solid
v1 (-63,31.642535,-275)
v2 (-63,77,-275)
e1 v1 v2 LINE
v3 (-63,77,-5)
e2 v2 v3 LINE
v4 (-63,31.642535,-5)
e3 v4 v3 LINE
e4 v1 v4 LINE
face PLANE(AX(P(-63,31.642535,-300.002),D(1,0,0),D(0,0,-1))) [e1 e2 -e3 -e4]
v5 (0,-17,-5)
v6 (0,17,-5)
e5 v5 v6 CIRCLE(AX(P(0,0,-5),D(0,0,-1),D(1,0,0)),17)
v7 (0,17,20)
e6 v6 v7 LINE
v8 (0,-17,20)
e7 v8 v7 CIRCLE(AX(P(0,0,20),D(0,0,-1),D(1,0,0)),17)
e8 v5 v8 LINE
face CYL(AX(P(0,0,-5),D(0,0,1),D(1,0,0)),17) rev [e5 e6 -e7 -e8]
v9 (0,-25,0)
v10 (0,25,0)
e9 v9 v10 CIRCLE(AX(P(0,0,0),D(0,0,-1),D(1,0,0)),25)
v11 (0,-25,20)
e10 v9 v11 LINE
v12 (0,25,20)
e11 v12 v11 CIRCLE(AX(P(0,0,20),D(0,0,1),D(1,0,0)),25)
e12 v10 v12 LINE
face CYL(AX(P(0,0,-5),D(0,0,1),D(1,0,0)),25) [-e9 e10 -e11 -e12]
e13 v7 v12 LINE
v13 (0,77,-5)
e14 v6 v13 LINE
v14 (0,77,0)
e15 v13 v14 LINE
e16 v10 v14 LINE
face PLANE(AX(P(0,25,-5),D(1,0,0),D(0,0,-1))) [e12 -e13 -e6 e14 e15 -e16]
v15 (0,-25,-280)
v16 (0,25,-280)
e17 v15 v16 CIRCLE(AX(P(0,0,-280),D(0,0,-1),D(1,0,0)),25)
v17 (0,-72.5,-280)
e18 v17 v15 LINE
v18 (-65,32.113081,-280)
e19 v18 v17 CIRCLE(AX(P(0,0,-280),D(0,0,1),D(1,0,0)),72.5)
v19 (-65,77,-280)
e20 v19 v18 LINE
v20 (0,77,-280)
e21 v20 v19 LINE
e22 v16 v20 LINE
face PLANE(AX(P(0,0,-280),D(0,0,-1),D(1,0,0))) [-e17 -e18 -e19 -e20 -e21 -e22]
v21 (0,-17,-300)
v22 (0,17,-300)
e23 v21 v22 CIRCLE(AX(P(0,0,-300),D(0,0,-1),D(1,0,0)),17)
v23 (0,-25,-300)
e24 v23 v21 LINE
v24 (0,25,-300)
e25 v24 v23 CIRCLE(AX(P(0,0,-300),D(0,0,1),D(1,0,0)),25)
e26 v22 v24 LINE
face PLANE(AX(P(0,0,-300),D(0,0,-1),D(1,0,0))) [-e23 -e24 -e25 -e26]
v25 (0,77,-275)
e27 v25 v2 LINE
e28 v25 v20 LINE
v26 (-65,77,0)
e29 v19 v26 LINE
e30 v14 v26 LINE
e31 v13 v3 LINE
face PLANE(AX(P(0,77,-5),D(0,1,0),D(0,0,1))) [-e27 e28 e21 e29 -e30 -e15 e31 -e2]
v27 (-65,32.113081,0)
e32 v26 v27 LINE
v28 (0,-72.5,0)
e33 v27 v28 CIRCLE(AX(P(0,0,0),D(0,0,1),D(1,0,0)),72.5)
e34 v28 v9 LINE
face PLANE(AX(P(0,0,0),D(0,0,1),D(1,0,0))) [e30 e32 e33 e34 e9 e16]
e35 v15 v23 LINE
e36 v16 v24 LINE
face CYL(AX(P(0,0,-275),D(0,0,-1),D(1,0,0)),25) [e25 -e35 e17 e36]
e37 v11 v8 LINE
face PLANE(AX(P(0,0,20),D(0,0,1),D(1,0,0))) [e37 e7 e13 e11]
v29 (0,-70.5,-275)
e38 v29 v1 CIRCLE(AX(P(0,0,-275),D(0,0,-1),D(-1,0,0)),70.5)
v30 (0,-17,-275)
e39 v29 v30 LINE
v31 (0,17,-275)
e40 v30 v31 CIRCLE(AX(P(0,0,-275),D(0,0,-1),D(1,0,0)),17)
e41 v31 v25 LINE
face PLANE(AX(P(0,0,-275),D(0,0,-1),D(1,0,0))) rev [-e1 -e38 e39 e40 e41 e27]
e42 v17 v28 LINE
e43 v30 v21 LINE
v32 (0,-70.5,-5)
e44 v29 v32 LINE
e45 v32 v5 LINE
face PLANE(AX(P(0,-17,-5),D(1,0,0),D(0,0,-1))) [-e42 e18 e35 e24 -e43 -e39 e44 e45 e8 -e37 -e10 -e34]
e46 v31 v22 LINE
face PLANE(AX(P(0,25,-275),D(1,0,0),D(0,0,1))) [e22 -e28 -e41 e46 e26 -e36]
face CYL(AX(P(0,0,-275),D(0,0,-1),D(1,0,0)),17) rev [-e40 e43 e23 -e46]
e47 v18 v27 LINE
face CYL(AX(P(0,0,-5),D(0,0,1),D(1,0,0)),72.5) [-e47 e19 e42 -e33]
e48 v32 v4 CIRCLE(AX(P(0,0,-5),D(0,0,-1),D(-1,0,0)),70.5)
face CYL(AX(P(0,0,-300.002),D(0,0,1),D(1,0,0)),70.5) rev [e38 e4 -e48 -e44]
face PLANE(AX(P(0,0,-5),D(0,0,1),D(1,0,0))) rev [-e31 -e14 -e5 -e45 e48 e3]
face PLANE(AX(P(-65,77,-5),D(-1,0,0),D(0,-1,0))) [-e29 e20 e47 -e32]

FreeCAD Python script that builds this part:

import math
import FreeCAD as App
import Part
import Sketcher

V = App.Vector

doc = App.newDocument("Part")
body = doc.addObject("PartDesign::Body", "Body")

# Sketch on XY plane
sketch1 = doc.addObject("Sketcher::SketchObject", "Sketch")
body.addObject(sketch1)
sketch1.AttachmentSupport = (doc.XY_Plane, [""])
sketch1.MapMode = "FlatFace"
sketch1.addGeometry(Part.LineSegment(V(0, 17, 0), V(0, 25, 0)), False)
sketch1.addGeometry(Part.ArcOfCircle(Part.Circle(V(0, 0, 0), V(0, 0, 1), 25), math.radians(90), math.radians(270)), False)
sketch1.addGeometry(Part.LineSegment(V(0, -25, 0), V(0, -17, 0)), False)
sketch1.addGeometry(Part.ArcOfCircle(Part.Circle(V(0, 0, 0), V(0, 0, 1), 17), math.radians(90), math.radians(270)), False)
sketch1.addConstraint(Sketcher.Constraint("Coincident", 0, 2, 1, 1))
sketch1.addConstraint(Sketcher.Constraint("Coincident", 1, 2, 2, 1))
sketch1.addConstraint(Sketcher.Constraint("Coincident", 2, 2, 3, 2))
sketch1.addConstraint(Sketcher.Constraint("Coincident", 3, 1, 0, 1))
sketch1.addConstraint(Sketcher.Constraint("Vertical", 0))
sketch1.addConstraint(Sketcher.Constraint("Vertical", 2))
sketch1.addConstraint(Sketcher.Constraint("Coincident", 1, 3, -1, 1))
sketch1.addConstraint(Sketcher.Constraint("Coincident", 3, 3, -1, 1))
sketch1.addConstraint(Sketcher.Constraint("PointOnObject", 0, 2, -2))
sketch1.addConstraint(Sketcher.Constraint("PointOnObject", 1, 2, -2))
sketch1.addConstraint(Sketcher.Constraint("Radius", 1, 25.0))
sketch1.addConstraint(Sketcher.Constraint("Radius", 3, 17.0))
pad1 = doc.addObject("PartDesign::Pad", "Pad")
body.addObject(pad1)
pad1.Profile = sketch1
pad1.Type = "TwoLengths"
pad1.Length = 20
pad1.Length2 = 5

# Sketch on XY plane
sketch2 = doc.addObject("Sketcher::SketchObject", "Sketch001")
body.addObject(sketch2)
sketch2.AttachmentSupport = (doc.XY_Plane, [""])
sketch2.MapMode = "FlatFace"
sketch2.AttachmentOffset = App.Placement(V(0, 0, -5), App.Rotation())
sketch2.addGeometry(Part.LineSegment(V(0, 25, 0), V(0, 77, 0)), False)
sketch2.addGeometry(Part.LineSegment(V(0, 77, 0), V(-65, 77, 0)), False)
sketch2.addGeometry(Part.LineSegment(V(-65, 77, 0), V(-65, 32, 0)), False)
sketch2.addGeometry(Part.ArcOfCircle(Part.Circle(V(0, 0, 0), V(0, 0, 1), 72), math.radians(154), math.radians(270)), False)
sketch2.addGeometry(Part.LineSegment(V(0, -72, 0), V(0, -25, 0)), False)
sketch2.addGeometry(Part.ArcOfCircle(Part.Circle(V(0, 0, 0), V(0, 0, 1), 25), math.radians(90), math.radians(270)), False)
sketch2.addConstraint(Sketcher.Constraint("Coincident", 0, 2, 1, 1))
sketch2.addConstraint(Sketcher.Constraint("Coincident", 1, 2, 2, 1))
sketch2.addConstraint(Sketcher.Constraint("Coincident", 2, 2, 3, 1))
sketch2.addConstraint(Sketcher.Constraint("Coincident", 3, 2, 4, 1))
sketch2.addConstraint(Sketcher.Constraint("Coincident", 4, 2, 5, 2))
sketch2.addConstraint(Sketcher.Constraint("Coincident", 5, 1, 0, 1))
sketch2.addConstraint(Sketcher.Constraint("Vertical", 0))
sketch2.addConstraint(Sketcher.Constraint("Horizontal", 1))
sketch2.addConstraint(Sketcher.Constraint("Vertical", 2))
sketch2.addConstraint(Sketcher.Constraint("Vertical", 4))
sketch2.addConstraint(Sketcher.Constraint("Coincident", 3, 3, -1, 1))
sketch2.addConstraint(Sketcher.Constraint("Coincident", 5, 3, -1, 1))
sketch2.addConstraint(Sketcher.Constraint("PointOnObject", 0, 2, -2))
sketch2.addConstraint(Sketcher.Constraint("PointOnObject", 3, 2, -2))
sketch2.addConstraint(Sketcher.Constraint("Radius", 5, 25.0))
sketch2.addConstraint(Sketcher.Constraint("Radius", 3, 72.5))
sketch2.addConstraint(Sketcher.Constraint("DistanceX", 1, 2, 1, 1, 65.0))
sketch2.addConstraint(Sketcher.Constraint("DistanceY", 0, 1, 0, 2, 52.0))
pad2 = doc.addObject("PartDesign::Pad", "Pad001")
body.addObject(pad2)
pad2.Profile = sketch2
pad2.Length = 5
body2 = doc.addObject("PartDesign::Body", "Body001")
body2.AllowCompound = True
doc.recompute()

mirroring = doc.addObject("Part::Mirroring", "Mirroring")
mirroring.Source = body
mirroring.Base = V(0, 0, -140)
mirroring.Normal = V(0, 0, 1)
body2.BaseFeature = mirroring
doc.recompute()

boolean = doc.addObject("PartDesign::Boolean", "Boolean")
body2.addObject(boolean)
boolean.Type = "Fuse"
boolean.addObjects([body])

# Sketch on XY plane
sketch3 = doc.addObject("Sketcher::SketchObject", "Sketch002")
body2.addObject(sketch3)
sketch3.AttachmentSupport = (doc.getObject("XY_Plane001"), [""])
sketch3.MapMode = "FlatFace"
sketch3.AttachmentOffset = App.Placement(V(0, 0, -5), App.Rotation())
sketch3.addGeometry(Part.LineSegment(V(-63, 77, 0), V(-63, 31.6, 0)), False)
sketch3.addGeometry(Part.ArcOfCircle(Part.Circle(V(0, 0, 0), V(0, 0, 1), 70.5), math.radians(153), math.radians(270)), False)
sketch3.addGeometry(Part.LineSegment(V(0, -70.5, 0), V(0, -72.5, 0)), False)
sketch3.addGeometry(Part.ArcOfCircle(Part.Circle(V(0, 0, 0), V(0, 0, 1), 72.5), math.radians(154), math.radians(270)), False)
sketch3.addGeometry(Part.LineSegment(V(-65, 32.1, 0), V(-65, 77, 0)), False)
sketch3.addGeometry(Part.LineSegment(V(-65, 77, 0), V(-63, 77, 0)), False)
sketch3.addConstraint(Sketcher.Constraint("Coincident", 0, 2, 1, 1))
sketch3.addConstraint(Sketcher.Constraint("Coincident", 1, 2, 2, 1))
sketch3.addConstraint(Sketcher.Constraint("Coincident", 2, 2, 3, 2))
sketch3.addConstraint(Sketcher.Constraint("Coincident", 3, 1, 4, 1))
sketch3.addConstraint(Sketcher.Constraint("Coincident", 4, 2, 5, 1))
sketch3.addConstraint(Sketcher.Constraint("Coincident", 5, 2, 0, 1))
sketch3.addConstraint(Sketcher.Constraint("Vertical", 0))
sketch3.addConstraint(Sketcher.Constraint("Vertical", 2))
sketch3.addConstraint(Sketcher.Constraint("Vertical", 4))
sketch3.addConstraint(Sketcher.Constraint("Horizontal", 5))
sketch3.addConstraint(Sketcher.Constraint("Coincident", 1, 3, -1, 1))
sketch3.addConstraint(Sketcher.Constraint("Coincident", 3, 3, -1, 1))
sketch3.addConstraint(Sketcher.Constraint("PointOnObject", 1, 2, -2))
sketch3.addConstraint(Sketcher.Constraint("Equal", 5, 2))
sketch3.addConstraint(Sketcher.Constraint("Radius", 1, 70.5))
sketch3.addConstraint(Sketcher.Constraint("Radius", 3, 72.5))
sketch3.addConstraint(Sketcher.Constraint("DistanceX", 0, 2, -1, 1, 63.0))
sketch3.addConstraint(Sketcher.Constraint("DistanceY", -1, 1, 4, 2, 77.0))
pad3 = doc.addObject("PartDesign::Pad", "Pad002")
body2.addObject(pad3)
pad3.Profile = sketch3
pad3.Type = "UpToFirst"
pad3.Reversed = True
mirroring.Visibility = False

doc.recompute()
